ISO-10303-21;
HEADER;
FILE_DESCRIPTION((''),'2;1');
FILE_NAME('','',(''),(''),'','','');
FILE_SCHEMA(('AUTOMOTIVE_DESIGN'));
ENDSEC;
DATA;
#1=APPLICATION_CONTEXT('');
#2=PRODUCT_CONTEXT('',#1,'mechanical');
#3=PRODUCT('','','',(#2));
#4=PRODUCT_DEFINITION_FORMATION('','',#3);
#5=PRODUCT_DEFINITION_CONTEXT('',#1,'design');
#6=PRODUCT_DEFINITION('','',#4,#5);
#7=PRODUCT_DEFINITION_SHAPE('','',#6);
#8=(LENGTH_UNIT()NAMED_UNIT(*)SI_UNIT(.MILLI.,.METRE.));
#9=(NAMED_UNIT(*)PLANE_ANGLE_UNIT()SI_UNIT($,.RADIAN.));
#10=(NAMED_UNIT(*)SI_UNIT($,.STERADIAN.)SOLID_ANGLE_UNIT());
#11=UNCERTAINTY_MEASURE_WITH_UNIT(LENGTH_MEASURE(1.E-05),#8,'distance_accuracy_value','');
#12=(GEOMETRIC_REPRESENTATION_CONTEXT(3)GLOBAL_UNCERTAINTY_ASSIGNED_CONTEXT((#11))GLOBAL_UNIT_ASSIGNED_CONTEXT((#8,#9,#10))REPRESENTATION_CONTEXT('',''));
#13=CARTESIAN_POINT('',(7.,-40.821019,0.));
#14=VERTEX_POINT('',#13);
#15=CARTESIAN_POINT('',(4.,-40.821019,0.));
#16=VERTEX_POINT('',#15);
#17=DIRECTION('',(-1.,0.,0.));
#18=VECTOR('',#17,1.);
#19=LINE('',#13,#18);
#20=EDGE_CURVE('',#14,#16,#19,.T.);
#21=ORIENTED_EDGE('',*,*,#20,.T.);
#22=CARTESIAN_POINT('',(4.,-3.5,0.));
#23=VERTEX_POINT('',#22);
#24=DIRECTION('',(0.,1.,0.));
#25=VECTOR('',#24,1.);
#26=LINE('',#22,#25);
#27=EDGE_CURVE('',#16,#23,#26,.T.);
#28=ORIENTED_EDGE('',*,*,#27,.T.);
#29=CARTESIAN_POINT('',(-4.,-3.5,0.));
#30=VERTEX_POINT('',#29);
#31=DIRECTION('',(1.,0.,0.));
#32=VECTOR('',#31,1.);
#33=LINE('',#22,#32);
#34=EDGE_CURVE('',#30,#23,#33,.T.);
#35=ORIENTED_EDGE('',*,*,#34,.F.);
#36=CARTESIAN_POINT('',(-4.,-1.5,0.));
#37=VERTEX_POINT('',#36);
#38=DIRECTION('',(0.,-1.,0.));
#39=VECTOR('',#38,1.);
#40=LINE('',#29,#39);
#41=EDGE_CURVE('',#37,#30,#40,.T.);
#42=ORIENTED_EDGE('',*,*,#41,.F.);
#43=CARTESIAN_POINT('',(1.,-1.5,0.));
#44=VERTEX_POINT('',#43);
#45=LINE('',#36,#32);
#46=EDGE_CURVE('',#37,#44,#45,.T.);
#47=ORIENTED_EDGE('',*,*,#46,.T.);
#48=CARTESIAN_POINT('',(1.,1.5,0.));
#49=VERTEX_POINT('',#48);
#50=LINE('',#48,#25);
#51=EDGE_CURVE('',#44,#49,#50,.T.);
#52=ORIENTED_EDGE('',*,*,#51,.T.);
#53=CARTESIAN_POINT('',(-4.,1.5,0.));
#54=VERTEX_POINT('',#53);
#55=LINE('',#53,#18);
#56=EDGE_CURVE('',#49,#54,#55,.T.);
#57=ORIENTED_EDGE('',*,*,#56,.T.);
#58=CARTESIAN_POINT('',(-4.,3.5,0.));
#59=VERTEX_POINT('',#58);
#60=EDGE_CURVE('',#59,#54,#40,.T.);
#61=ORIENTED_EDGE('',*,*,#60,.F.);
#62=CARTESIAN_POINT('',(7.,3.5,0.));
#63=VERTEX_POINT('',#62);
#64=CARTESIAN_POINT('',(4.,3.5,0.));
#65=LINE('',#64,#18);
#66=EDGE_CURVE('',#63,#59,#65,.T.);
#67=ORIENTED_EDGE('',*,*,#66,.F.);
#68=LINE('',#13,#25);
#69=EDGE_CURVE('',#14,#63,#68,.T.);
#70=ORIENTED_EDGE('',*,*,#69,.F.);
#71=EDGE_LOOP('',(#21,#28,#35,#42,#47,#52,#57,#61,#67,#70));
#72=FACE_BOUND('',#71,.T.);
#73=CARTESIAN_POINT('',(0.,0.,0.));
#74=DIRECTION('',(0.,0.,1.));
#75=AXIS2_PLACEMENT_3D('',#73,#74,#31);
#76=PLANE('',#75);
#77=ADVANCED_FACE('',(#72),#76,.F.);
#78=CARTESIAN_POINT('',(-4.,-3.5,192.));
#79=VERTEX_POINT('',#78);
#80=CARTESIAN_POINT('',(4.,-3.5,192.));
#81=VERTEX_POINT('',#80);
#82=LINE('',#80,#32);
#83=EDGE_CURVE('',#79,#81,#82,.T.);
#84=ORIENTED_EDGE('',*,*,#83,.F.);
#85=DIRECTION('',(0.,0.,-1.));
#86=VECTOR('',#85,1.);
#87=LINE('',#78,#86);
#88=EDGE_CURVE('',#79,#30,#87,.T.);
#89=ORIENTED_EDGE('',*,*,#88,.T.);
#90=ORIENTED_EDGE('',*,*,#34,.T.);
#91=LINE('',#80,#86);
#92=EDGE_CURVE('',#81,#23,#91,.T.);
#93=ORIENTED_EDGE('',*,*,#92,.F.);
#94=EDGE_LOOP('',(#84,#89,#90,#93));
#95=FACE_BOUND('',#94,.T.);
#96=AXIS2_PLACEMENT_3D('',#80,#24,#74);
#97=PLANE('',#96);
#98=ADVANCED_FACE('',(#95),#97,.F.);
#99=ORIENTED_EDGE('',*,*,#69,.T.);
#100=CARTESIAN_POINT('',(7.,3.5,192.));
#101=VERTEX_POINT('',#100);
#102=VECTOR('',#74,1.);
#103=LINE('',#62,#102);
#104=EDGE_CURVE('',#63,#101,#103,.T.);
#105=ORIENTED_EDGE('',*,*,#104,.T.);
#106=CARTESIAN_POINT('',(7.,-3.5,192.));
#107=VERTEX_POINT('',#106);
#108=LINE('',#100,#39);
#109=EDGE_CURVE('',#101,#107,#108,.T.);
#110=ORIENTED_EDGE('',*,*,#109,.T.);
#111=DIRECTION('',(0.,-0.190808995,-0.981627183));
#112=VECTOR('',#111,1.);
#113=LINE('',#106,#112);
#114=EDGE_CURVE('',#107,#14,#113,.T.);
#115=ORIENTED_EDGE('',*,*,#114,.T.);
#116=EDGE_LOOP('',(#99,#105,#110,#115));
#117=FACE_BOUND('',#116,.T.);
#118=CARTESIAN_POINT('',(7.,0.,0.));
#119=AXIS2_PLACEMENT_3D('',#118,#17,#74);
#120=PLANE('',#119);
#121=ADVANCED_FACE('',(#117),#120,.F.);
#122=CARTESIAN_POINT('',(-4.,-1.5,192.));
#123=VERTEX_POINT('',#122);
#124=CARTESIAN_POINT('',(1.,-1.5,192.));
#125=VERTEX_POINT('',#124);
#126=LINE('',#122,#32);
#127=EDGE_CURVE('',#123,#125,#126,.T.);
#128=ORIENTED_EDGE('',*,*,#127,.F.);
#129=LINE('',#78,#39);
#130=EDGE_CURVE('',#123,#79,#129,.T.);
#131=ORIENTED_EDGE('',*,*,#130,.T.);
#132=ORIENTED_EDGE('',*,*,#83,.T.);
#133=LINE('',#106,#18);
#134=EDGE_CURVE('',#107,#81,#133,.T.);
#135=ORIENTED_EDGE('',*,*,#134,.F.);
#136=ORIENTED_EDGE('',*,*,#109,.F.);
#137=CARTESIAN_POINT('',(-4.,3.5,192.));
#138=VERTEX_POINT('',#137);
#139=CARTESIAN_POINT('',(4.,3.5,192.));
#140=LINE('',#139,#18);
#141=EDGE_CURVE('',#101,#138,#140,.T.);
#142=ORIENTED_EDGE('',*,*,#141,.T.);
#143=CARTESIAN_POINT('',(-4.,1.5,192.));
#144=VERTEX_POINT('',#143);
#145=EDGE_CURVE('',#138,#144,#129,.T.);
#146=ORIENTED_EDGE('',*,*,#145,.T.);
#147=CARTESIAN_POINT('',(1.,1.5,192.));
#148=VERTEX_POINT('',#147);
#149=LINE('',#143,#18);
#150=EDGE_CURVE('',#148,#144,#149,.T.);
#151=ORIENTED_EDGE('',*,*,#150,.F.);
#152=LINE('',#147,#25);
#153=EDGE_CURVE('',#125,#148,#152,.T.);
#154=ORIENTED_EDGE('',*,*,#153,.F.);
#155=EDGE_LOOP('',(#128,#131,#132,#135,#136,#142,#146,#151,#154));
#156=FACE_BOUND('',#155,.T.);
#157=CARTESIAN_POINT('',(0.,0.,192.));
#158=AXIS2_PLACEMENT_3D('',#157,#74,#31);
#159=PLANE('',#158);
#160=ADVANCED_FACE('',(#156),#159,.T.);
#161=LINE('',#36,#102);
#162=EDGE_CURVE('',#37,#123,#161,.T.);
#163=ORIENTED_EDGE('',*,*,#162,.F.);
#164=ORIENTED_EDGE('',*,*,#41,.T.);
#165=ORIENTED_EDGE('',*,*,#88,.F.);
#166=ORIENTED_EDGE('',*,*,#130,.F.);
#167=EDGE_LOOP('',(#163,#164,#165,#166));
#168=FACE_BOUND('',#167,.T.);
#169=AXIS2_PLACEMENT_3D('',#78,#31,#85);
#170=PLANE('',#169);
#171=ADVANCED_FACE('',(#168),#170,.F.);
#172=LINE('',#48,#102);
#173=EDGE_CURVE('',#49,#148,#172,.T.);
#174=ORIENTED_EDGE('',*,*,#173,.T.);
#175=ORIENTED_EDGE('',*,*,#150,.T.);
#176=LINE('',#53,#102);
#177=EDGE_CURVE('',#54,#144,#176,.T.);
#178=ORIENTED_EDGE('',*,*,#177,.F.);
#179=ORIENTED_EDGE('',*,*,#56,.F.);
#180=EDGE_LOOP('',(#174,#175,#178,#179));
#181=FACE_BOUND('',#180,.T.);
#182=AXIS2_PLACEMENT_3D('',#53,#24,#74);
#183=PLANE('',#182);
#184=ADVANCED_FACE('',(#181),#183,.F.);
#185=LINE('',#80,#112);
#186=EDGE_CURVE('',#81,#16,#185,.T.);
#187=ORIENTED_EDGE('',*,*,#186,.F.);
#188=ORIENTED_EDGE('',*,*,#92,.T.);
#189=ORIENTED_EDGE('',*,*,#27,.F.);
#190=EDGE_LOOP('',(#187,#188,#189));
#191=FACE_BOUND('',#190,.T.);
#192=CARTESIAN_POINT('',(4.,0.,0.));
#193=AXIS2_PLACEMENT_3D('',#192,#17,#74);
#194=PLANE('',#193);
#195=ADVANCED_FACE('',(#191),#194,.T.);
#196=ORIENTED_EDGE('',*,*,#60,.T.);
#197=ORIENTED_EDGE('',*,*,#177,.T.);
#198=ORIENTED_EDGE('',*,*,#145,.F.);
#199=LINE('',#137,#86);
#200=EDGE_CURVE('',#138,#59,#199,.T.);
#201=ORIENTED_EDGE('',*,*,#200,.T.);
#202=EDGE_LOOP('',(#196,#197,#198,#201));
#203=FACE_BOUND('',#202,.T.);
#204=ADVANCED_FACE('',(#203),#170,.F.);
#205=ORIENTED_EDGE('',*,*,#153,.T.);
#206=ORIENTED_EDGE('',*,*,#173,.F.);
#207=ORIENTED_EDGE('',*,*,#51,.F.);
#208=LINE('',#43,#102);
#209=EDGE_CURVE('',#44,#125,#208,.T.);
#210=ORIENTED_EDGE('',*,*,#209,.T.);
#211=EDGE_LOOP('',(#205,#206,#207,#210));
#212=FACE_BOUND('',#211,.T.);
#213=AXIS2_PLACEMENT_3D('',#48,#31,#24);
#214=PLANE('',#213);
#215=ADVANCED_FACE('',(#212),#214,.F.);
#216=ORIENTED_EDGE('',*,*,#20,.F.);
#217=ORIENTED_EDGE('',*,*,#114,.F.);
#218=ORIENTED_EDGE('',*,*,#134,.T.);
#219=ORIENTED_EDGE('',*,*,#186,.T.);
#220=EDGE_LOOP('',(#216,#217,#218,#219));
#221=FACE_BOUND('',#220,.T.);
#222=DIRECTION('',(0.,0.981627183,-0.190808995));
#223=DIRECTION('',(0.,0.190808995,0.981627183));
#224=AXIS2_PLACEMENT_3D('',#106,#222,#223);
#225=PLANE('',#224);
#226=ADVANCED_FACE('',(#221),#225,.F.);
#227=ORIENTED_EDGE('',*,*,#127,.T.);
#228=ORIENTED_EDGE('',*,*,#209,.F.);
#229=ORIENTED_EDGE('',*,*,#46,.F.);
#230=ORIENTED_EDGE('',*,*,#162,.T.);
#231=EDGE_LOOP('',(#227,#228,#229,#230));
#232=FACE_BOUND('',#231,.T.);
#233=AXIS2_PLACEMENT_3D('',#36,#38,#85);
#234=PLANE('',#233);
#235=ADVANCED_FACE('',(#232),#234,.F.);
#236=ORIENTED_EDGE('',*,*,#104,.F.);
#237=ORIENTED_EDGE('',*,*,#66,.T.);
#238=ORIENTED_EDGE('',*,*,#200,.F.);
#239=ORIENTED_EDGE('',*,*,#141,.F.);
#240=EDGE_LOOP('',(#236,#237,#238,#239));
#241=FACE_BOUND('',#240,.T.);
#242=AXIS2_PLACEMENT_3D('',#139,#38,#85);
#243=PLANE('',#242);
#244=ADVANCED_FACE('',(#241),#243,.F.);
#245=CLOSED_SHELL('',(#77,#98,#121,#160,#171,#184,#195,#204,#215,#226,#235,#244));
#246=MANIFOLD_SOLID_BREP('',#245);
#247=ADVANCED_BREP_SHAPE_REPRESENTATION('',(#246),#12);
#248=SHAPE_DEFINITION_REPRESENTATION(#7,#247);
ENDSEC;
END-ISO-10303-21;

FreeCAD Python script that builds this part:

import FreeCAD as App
import Part
import Sketcher
from FreeCAD import Vector
Q = App.Units.Quantity


def add_polygon(sketch, points):
    """Adds a closed chain of lines whose ends are joined by coincident constraints."""
    first, n = sketch.GeometryCount, len(points)
    for a, b in zip(points, points[1:] + points[:1]):
        sketch.addGeometry(Part.LineSegment(App.Vector(*a, 0), App.Vector(*b, 0)), False)
    for i in range(n):
        sketch.addConstraint(Sketcher.Constraint("Coincident", first + i, 2, first + (i + 1) % n, 1))

doc = App.newDocument("Part")
body = doc.addObject("PartDesign::Body", "Body")

# Sketch on XY plane
sketch1 = body.newObject("Sketcher::SketchObject", "Sketch")
sketch1.AttachmentSupport = (doc.getObject("XY_Plane"), [""])
sketch1.MapMode = "FlatFace"
add_polygon(sketch1, [(-4, 4), (-4, -4), (4, -4), (4, 4)])  # lines 0-3
sketch1.addConstraint(Sketcher.Constraint("Vertical", 0))
sketch1.addConstraint(Sketcher.Constraint("Horizontal", 1))
sketch1.addConstraint(Sketcher.Constraint("Vertical", 2))
sketch1.addConstraint(Sketcher.Constraint("Horizontal", 3))
sketch1.addConstraint(Sketcher.Constraint("Symmetric", 0, 2, 2, 2, -1, 1))
sketch1.addConstraint(Sketcher.Constraint("DistanceX", 1, 1, 1, 2, 8.0))
sketch1.addConstraint(Sketcher.Constraint("DistanceY", 0, 2, 0, 1, 7.0))
pad1 = body.newObject("PartDesign::Pad", "Pad")
pad1.Profile = sketch1
pad1.Length = 192

# Sketch on XY plane
sketch2 = body.newObject("Sketcher::SketchObject", "Sketch001")
sketch2.AttachmentSupport = (doc.getObject("XY_Plane"), [""])
sketch2.MapMode = "FlatFace"
sketch2.AttachmentOffset = App.Placement(Vector(0, 0, 192), App.Rotation())
add_polygon(sketch2, [(-4, 1.5), (-4, -1.5), (1, -1.5), (1, 1.5)])  # lines 0-3
sketch2.addConstraint(Sketcher.Constraint("Vertical", 0))
sketch2.addConstraint(Sketcher.Constraint("Horizontal", 1))
sketch2.addConstraint(Sketcher.Constraint("Vertical", 2))
sketch2.addConstraint(Sketcher.Constraint("Horizontal", 3))
sketch2.addConstraint(Sketcher.Constraint("DistanceX", 1, 1, 1, 2, 5.0))
sketch2.addConstraint(Sketcher.Constraint("DistanceY", 0, 2, 0, 1, 3.0))
sketch2.addConstraint(Sketcher.Constraint("DistanceX", 0, 2, -1, 1, 4.0))
sketch2.addConstraint(Sketcher.Constraint("DistanceY", 0, 2, -1, 1, 1.5))
pocket1 = body.newObject("PartDesign::Pocket", "Pocket")
pocket1.Profile = sketch2
pocket1.Length = 192

# Sketch on YZ plane
sketch3 = body.newObject("Sketcher::SketchObject", "Sketch002")
sketch3.AttachmentSupport = (doc.getObject("YZ_Plane"), [""])
sketch3.MapMode = "FlatFace"
sketch3.AttachmentOffset = App.Placement(Vector(0, 0, 4), App.Rotation())
add_polygon(sketch3, [(-4, 192), (-41, 0), (4, 0), (4, 192)])  # lines 0-3
sketch3.addConstraint(Sketcher.Constraint("Horizontal", 1))
sketch3.addConstraint(Sketcher.Constraint("Vertical", 2))
sketch3.addConstraint(Sketcher.Constraint("Horizontal", 3))
sketch3.addConstraint(Sketcher.Constraint("PointOnObject", 0, 2, -1))
sketch3.addConstraint(Sketcher.Constraint("DistanceX", 3, 2, 3, 1, 7.0))
sketch3.addConstraint(Sketcher.Constraint("DistanceY", 2, 1, 2, 2, 192.0))
sketch3.addConstraint(Sketcher.Constraint("Angle", 0, Q("-101 deg")))
sketch3.addConstraint(Sketcher.Constraint("DistanceX", -1, 1, 1, 2, 3.5))
pad2 = body.newObject("PartDesign::Pad", "Pad001")
pad2.Profile = sketch3
pad2.Length = 3

doc.recompute()
